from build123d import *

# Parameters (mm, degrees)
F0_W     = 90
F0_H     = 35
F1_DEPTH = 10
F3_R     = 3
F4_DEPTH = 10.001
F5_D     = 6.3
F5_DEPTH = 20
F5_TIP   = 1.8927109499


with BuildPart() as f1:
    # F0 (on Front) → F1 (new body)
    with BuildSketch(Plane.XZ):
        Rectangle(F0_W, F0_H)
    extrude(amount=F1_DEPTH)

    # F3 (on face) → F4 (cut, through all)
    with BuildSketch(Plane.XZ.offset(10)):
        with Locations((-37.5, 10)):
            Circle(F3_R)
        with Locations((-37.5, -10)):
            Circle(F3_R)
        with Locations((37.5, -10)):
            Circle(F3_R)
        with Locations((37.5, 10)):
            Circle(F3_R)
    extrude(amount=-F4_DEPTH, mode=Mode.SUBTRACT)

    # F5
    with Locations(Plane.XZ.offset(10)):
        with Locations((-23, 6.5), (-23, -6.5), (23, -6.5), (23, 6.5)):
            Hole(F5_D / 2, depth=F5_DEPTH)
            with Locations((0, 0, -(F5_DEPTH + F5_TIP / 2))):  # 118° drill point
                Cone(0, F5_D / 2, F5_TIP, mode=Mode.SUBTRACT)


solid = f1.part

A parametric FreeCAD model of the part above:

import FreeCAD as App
import Part
import Sketcher
from FreeCAD import Vector

doc = App.newDocument("Part")
body = doc.addObject("PartDesign::Body", "Body")

# Sketch on XZ plane
sketch1 = body.newObject("Sketcher::SketchObject", "Sketch")
sketch1.AttachmentSupport = (doc.getObject("XZ_Plane"), [""])
sketch1.MapMode = "FlatFace"
sketch1.addGeometry([
    Part.LineSegment(Vector(-45, 18, 0), Vector(-45, -18, 0)),
    Part.LineSegment(Vector(-45, -18, 0), Vector(45, -18, 0)),
    Part.LineSegment(Vector(45, -18, 0), Vector(45, 18, 0)),
    Part.LineSegment(Vector(45, 18, 0), Vector(-45, 18, 0)),
], False)
sketch1.addConstraint([
    Sketcher.Constraint("Coincident", 0, 2, 1, 1),
    Sketcher.Constraint("Coincident", 1, 2, 2, 1),
    Sketcher.Constraint("Coincident", 2, 2, 3, 1),
    Sketcher.Constraint("Coincident", 3, 2, 0, 1),
    Sketcher.Constraint("Vertical", 0),
    Sketcher.Constraint("Horizontal", 1),
    Sketcher.Constraint("Vertical", 2),
    Sketcher.Constraint("Horizontal", 3),
    Sketcher.Constraint("Symmetric", 0, 2, 2, 2, -1, 1),
    Sketcher.Constraint("DistanceX", 1, 1, 1, 2, 90.0),
    Sketcher.Constraint("DistanceY", 0, 2, 0, 1, 35.0),
])
pad1 = body.newObject("PartDesign::Pad", "Pad")
pad1.Profile = sketch1
pad1.Length = 10

# Sketch on XZ plane
sketch2 = body.newObject("Sketcher::SketchObject", "Sketch001")
sketch2.AttachmentSupport = (doc.getObject("XZ_Plane"), [""])
sketch2.MapMode = "FlatFace"
sketch2.AttachmentOffset = App.Placement(Vector(0, 0, 10), App.Rotation())
sketch2.addGeometry([
    Part.Circle(Vector(-37.5, 10, 0), Vector(0, 0, 1), 3),
    Part.Circle(Vector(-37.5, -10, 0), Vector(0, 0, 1), 3),
    Part.Circle(Vector(37.5, -10, 0), Vector(0, 0, 1), 3),
    Part.Circle(Vector(37.5, 10, 0), Vector(0, 0, 1), 3),
], False)
sketch2.addConstraint([
    Sketcher.Constraint("Equal", 0, 1),
    Sketcher.Constraint("Equal", 1, 2),
    Sketcher.Constraint("Equal", 2, 3),
    Sketcher.Constraint("Symmetric", 0, 3, 2, 3, -1, 1),
    Sketcher.Constraint("Symmetric", 1, 3, 3, 3, -1, 1),
    Sketcher.Constraint("Symmetric", 1, 3, 2, 3, -2),
    Sketcher.Constraint("Diameter", 0, 6.0),
    Sketcher.Constraint("DistanceY", -1, 1, 0, 3, 10.0),
    Sketcher.Constraint("DistanceX", 1, 3, 2, 3, 75.0),
])
pocket1 = body.newObject("PartDesign::Pocket", "Pocket")
pocket1.Profile = sketch2
pocket1.Type = "ThroughAll"

# Sketch on XZ plane
sketch3 = body.newObject("Sketcher::SketchObject", "Sketch002")
sketch3.AttachmentSupport = (doc.getObject("XZ_Plane"), [""])
sketch3.MapMode = "FlatFace"
sketch3.AttachmentOffset = App.Placement(Vector(0, 0, 10), App.Rotation())
sketch3.addGeometry([
    Part.Circle(Vector(-23, 6.5, 0), Vector(0, 0, 1), 3.1),
    Part.Circle(Vector(-23, -6.5, 0), Vector(0, 0, 1), 3.1),
    Part.Circle(Vector(23, -6.5, 0), Vector(0, 0, 1), 3.1),
    Part.Circle(Vector(23, 6.5, 0), Vector(0, 0, 1), 3.1),
], False)
sketch3.addConstraint([
    Sketcher.Constraint("Equal", 0, 1),
    Sketcher.Constraint("Equal", 1, 2),
    Sketcher.Constraint("Equal", 2, 3),
    Sketcher.Constraint("Symmetric", 0, 3, 2, 3, -1, 1),
    Sketcher.Constraint("Symmetric", 1, 3, 3, 3, -1, 1),
    Sketcher.Constraint("Symmetric", 1, 3, 2, 3, -2),
    Sketcher.Constraint("Diameter", 0, 6.3),
    Sketcher.Constraint("DistanceX", 0, 3, -1, 1, 23.0),
    Sketcher.Constraint("DistanceY", 1, 3, 0, 3, 13.0),
])
doc.recompute()
hole = body.newObject("PartDesign::Hole", "Hole")
hole.Profile = sketch3
hole.ThreadType = "None"
hole.Diameter = 6.3
hole.DepthType = "Dimension"
hole.Depth = 20
hole.DrillPoint = "Angled"
hole.DrillPointAngle = 118

doc.recompute()
